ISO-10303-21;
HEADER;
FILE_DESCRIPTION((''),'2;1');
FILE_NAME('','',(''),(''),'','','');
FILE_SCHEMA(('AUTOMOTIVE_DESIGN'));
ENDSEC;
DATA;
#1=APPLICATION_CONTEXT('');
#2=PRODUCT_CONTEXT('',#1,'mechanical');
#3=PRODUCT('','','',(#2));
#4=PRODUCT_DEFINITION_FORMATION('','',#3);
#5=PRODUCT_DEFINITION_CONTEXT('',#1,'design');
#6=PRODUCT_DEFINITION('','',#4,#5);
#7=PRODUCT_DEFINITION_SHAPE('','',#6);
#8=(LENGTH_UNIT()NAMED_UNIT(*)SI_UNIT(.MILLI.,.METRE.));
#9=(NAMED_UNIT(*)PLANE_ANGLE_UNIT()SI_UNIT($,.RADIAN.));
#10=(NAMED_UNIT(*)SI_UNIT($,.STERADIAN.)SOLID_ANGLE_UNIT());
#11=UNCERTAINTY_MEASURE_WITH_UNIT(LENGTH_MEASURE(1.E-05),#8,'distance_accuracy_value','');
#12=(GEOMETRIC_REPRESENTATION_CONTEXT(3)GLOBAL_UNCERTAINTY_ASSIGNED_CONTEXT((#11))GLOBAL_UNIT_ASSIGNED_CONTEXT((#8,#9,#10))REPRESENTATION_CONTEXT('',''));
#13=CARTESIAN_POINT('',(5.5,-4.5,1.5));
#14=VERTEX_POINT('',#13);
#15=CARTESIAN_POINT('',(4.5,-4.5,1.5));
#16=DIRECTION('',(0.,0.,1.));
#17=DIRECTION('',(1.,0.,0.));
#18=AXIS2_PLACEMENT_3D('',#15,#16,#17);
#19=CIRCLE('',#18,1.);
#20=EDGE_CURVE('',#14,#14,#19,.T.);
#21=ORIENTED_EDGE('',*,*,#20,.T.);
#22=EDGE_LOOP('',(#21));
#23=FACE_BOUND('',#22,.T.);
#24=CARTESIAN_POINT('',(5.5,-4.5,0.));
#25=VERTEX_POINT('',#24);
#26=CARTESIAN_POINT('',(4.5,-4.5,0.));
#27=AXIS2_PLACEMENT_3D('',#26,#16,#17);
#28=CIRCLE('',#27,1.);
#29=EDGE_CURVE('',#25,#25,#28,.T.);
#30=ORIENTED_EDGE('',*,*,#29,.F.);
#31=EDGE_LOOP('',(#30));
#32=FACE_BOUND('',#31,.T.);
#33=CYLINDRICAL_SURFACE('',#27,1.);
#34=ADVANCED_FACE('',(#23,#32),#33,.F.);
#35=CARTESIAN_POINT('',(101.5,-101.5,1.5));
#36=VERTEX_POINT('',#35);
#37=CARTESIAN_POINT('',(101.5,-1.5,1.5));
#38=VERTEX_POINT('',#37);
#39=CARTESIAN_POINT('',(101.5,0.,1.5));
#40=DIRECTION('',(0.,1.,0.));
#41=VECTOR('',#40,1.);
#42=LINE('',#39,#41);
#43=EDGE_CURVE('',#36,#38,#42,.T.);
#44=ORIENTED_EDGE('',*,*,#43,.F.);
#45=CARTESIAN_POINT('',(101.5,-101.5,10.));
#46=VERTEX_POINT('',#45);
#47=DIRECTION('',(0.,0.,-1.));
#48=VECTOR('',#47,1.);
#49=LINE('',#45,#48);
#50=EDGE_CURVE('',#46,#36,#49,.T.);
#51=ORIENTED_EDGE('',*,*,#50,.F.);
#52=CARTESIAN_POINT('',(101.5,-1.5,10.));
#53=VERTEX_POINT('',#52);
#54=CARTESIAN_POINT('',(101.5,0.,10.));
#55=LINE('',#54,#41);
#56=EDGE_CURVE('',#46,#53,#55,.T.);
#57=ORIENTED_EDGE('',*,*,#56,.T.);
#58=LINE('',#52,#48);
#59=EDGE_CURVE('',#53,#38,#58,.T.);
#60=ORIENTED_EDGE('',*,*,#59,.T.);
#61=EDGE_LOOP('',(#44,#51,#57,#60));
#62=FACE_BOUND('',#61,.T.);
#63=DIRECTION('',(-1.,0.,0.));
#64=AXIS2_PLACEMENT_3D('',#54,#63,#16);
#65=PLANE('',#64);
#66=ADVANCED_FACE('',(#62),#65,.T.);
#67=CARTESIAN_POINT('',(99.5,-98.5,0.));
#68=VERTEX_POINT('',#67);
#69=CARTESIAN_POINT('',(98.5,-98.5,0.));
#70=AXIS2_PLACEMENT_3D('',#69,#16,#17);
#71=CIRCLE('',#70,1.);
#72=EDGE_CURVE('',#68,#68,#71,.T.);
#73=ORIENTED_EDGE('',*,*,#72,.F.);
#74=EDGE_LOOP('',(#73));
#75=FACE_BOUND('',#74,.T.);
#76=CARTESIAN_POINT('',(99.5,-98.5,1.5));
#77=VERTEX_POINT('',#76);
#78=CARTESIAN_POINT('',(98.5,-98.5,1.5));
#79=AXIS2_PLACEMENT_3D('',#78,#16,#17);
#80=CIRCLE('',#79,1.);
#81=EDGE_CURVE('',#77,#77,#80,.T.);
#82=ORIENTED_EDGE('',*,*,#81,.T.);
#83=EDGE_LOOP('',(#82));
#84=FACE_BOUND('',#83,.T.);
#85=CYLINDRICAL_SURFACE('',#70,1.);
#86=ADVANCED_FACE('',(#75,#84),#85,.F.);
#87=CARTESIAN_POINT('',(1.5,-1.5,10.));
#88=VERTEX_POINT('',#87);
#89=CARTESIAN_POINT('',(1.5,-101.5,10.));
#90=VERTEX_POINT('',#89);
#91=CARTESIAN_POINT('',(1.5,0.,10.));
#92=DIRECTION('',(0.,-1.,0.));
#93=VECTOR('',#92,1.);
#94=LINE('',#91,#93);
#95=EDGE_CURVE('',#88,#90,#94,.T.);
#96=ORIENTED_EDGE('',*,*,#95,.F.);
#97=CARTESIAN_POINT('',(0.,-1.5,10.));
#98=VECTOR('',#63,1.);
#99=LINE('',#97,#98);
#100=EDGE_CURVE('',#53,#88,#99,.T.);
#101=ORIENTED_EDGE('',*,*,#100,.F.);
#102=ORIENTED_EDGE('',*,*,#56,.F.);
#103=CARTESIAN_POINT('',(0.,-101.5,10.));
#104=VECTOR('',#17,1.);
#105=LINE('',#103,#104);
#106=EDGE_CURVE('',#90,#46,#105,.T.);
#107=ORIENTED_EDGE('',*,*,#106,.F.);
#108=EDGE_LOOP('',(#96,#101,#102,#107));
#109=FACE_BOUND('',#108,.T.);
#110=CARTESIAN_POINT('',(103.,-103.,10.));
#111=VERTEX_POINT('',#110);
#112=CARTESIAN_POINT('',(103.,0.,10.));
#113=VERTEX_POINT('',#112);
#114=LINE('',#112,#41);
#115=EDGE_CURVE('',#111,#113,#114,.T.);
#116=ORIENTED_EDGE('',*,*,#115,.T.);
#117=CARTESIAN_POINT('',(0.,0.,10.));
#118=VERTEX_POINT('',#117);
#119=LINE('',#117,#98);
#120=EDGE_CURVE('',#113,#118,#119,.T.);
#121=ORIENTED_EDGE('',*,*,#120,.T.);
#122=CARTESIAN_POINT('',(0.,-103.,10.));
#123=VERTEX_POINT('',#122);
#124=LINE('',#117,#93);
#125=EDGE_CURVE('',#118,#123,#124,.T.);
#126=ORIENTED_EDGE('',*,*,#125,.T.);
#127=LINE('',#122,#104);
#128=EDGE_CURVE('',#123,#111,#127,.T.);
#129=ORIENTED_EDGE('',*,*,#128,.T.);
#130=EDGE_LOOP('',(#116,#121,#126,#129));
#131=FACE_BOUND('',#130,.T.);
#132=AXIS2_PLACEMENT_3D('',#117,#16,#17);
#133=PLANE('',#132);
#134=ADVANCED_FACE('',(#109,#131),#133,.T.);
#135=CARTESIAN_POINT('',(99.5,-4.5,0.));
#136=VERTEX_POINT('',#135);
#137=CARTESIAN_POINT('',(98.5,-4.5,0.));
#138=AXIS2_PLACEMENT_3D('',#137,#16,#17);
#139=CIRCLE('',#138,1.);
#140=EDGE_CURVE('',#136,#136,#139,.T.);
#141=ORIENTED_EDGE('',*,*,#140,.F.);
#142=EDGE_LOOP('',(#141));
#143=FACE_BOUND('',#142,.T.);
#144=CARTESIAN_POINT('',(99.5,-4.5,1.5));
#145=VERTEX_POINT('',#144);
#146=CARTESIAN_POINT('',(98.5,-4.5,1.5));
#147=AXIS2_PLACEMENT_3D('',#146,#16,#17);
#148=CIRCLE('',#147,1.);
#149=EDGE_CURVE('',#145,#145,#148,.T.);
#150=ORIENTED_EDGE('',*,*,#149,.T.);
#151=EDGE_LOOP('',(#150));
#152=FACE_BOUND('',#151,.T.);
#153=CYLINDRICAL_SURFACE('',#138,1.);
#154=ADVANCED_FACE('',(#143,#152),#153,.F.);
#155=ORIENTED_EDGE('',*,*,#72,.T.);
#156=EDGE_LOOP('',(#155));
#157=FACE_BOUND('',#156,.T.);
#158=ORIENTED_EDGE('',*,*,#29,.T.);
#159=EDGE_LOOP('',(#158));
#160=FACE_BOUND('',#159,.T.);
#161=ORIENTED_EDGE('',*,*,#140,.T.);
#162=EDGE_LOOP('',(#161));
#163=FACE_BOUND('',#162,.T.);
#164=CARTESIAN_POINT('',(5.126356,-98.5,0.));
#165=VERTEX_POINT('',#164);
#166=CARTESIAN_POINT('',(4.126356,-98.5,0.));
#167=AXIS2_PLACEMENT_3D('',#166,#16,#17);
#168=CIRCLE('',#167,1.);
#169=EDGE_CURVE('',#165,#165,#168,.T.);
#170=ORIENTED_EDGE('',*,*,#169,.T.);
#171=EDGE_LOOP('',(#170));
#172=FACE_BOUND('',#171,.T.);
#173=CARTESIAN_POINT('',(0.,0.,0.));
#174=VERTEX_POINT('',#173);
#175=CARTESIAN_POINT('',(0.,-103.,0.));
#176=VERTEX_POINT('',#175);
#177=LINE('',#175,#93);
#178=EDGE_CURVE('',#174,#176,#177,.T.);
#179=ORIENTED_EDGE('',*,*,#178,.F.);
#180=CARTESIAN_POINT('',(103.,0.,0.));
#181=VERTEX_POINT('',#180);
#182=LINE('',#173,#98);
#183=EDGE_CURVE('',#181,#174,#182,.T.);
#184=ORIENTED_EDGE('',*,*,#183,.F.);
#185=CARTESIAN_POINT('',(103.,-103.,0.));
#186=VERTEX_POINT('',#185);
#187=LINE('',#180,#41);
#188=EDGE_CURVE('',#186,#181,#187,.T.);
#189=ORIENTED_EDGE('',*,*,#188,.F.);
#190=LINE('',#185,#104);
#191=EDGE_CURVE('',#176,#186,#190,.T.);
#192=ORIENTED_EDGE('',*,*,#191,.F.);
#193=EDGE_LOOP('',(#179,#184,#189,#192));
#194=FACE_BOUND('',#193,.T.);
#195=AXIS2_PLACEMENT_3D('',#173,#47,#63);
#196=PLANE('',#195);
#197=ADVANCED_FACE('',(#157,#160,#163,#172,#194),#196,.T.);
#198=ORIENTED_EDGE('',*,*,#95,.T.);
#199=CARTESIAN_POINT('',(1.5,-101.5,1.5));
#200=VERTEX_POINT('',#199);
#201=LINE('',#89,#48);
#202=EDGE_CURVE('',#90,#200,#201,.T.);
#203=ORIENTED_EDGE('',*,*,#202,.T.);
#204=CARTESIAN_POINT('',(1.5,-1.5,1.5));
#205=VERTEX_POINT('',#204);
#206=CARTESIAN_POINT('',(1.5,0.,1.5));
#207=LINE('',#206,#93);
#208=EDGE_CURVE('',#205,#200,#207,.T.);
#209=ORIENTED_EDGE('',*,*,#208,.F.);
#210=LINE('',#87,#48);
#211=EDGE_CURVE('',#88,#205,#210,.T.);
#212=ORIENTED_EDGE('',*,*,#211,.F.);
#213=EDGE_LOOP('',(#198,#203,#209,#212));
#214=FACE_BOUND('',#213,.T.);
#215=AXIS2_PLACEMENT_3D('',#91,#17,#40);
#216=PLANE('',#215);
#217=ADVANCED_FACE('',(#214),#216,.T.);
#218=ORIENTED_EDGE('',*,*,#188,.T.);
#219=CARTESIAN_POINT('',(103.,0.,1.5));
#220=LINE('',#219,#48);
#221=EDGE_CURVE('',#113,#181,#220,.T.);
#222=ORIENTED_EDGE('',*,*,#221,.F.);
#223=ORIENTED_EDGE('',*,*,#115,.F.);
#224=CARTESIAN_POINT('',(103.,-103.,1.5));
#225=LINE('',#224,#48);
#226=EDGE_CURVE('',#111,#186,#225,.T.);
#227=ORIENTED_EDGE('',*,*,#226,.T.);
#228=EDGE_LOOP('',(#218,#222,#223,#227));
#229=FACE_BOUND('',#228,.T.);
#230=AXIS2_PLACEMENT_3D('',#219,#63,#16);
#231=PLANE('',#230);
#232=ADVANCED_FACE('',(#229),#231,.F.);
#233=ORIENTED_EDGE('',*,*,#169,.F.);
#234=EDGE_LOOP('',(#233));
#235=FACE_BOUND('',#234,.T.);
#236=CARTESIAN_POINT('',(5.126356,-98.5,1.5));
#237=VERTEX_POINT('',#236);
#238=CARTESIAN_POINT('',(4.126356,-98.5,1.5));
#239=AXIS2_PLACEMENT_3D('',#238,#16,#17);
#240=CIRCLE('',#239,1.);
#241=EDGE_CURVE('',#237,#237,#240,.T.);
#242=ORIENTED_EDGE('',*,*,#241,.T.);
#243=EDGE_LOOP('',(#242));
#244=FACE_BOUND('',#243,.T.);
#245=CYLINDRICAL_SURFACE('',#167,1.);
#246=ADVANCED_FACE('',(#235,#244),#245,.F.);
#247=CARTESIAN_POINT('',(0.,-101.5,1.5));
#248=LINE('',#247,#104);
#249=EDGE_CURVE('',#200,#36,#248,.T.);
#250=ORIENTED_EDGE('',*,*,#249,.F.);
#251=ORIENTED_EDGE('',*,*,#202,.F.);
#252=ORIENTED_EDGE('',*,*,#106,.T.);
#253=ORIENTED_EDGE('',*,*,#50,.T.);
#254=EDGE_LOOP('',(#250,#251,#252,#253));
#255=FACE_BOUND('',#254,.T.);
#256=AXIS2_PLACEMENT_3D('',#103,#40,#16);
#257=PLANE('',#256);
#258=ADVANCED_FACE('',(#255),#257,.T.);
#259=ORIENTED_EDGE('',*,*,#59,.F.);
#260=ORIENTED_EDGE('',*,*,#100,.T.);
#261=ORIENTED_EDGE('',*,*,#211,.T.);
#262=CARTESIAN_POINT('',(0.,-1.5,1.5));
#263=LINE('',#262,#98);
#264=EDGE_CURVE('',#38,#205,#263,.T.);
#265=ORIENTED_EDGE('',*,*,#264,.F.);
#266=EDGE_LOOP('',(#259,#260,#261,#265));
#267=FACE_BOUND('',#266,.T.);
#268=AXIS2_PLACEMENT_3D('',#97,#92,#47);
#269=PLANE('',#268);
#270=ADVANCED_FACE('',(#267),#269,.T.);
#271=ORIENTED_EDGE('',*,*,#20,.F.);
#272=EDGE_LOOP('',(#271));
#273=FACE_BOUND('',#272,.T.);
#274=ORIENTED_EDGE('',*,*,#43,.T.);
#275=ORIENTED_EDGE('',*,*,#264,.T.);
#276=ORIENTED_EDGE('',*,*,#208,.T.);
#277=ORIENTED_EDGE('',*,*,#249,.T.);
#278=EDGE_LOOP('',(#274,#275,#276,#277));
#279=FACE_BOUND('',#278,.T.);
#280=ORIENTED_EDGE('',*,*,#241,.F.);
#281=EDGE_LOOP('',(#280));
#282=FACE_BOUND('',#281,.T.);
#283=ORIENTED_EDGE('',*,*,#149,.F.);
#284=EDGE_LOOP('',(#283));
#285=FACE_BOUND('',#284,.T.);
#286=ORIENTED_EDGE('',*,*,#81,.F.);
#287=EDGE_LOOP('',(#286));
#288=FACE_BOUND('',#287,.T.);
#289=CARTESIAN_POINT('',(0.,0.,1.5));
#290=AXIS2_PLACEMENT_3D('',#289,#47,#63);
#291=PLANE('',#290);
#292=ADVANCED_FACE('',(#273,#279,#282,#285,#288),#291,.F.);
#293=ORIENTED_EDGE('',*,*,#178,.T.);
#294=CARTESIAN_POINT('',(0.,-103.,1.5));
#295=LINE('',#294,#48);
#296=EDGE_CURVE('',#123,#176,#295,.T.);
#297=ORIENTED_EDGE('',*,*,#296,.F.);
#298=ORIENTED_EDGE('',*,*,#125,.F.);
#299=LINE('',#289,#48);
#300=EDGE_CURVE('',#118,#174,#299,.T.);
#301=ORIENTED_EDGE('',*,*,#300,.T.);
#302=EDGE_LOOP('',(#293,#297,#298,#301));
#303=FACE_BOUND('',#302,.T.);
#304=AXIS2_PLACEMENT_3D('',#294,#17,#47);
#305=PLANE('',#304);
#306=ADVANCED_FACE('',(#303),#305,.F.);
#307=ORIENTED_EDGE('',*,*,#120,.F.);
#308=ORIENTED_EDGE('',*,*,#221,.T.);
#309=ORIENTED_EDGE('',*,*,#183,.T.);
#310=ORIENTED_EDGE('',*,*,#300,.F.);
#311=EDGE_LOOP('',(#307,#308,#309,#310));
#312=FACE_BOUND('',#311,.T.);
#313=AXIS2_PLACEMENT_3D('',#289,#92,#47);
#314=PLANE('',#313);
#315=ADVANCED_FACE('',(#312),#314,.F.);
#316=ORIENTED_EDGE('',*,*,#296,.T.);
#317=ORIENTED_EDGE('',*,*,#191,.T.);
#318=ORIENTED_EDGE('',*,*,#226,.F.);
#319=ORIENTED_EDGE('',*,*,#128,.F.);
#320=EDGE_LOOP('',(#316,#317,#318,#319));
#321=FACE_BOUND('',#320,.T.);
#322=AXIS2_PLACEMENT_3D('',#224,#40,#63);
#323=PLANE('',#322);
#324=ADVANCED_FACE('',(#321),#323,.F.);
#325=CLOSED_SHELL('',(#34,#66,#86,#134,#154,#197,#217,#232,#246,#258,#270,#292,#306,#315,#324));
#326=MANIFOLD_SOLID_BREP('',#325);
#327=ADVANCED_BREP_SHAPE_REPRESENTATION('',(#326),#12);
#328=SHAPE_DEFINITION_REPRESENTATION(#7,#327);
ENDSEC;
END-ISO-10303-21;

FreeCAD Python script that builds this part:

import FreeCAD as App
import Part
import Sketcher
from FreeCAD import Vector


def add_polygon(sketch, points):
    """Adds a closed chain of lines whose ends are joined by coincident constraints."""
    first, n = sketch.GeometryCount, len(points)
    for a, b in zip(points, points[1:] + points[:1]):
        sketch.addGeometry(Part.LineSegment(App.Vector(*a, 0), App.Vector(*b, 0)), False)
    for i in range(n):
        sketch.addConstraint(Sketcher.Constraint("Coincident", first + i, 2, first + (i + 1) % n, 1))

doc = App.newDocument("Part")
body = doc.addObject("PartDesign::Body", "Body")

# Sketch on XY plane
sketch1 = body.newObject("Sketcher::SketchObject", "Sketch")
sketch1.AttachmentSupport = (doc.getObject("XY_Plane"), [""])
sketch1.MapMode = "FlatFace"
add_polygon(sketch1, [(0, 0), (0, -103), (103, -103), (103, 0)])  # lines 0-3
sketch1.addConstraint(Sketcher.Constraint("Vertical", 0))
sketch1.addConstraint(Sketcher.Constraint("Horizontal", 1))
sketch1.addConstraint(Sketcher.Constraint("Vertical", 2))
sketch1.addConstraint(Sketcher.Constraint("Horizontal", 3))
sketch1.addConstraint(Sketcher.Constraint("Coincident", 3, 2, -1, 1))
sketch1.addConstraint(Sketcher.Constraint("Equal", 3, 0))
sketch1.addConstraint(Sketcher.Constraint("DistanceX", 1, 1, 1, 2, 103.0))
pad1 = body.newObject("PartDesign::Pad", "Pad")
pad1.Profile = sketch1
pad1.Length = 1.5

# Sketch on XY plane
sketch2 = body.newObject("Sketcher::SketchObject", "Sketch001")
sketch2.AttachmentSupport = (doc.getObject("XY_Plane"), [""])
sketch2.MapMode = "FlatFace"
sketch2.AttachmentOffset = App.Placement(Vector(0, 0, 1.5), App.Rotation())
add_polygon(sketch2, [(0, 0), (0, -103), (103, -103), (103, 0)])  # lines 0-3
add_polygon(sketch2, [(102, -102), (2, -102), (2, -2), (102, -2)])  # lines 4-7
sketch2.addConstraint(Sketcher.Constraint("Vertical", 0))
sketch2.addConstraint(Sketcher.Constraint("Horizontal", 1))
sketch2.addConstraint(Sketcher.Constraint("Vertical", 2))
sketch2.addConstraint(Sketcher.Constraint("Horizontal", 3))
sketch2.addConstraint(Sketcher.Constraint("Horizontal", 4))
sketch2.addConstraint(Sketcher.Constraint("Vertical", 5))
sketch2.addConstraint(Sketcher.Constraint("Horizontal", 6))
sketch2.addConstraint(Sketcher.Constraint("Vertical", 7))
sketch2.addConstraint(Sketcher.Constraint("Coincident", 3, 2, -1, 1))
sketch2.addConstraint(Sketcher.Constraint("Equal", 3, 0))
sketch2.addConstraint(Sketcher.Constraint("Equal", 6, 5))
sketch2.addConstraint(Sketcher.Constraint("DistanceX", 1, 1, 1, 2, 103.0))
sketch2.addConstraint(Sketcher.Constraint("DistanceX", 4, 2, 4, 1, 100.0))
sketch2.addConstraint(Sketcher.Constraint("DistanceX", -1, 1, 4, 2, 1.5))
sketch2.addConstraint(Sketcher.Constraint("DistanceY", 4, 2, -1, 1, 101.5))
pad2 = body.newObject("PartDesign::Pad", "Pad001")
pad2.Profile = sketch2
pad2.Length = 8.5

# Sketch on XY plane
sketch3 = body.newObject("Sketcher::SketchObject", "Sketch002")
sketch3.AttachmentSupport = (doc.getObject("XY_Plane"), [""])
sketch3.MapMode = "FlatFace"
sketch3.AttachmentOffset = App.Placement(Vector(0, 0, 1.5), App.Rotation())
sketch3.addGeometry(Part.Circle(Vector(4.1, -98.5, 0), Vector(0, 0, 1), 1), False)
sketch3.addGeometry(Part.Circle(Vector(98.5, -98.5, 0), Vector(0, 0, 1), 1), False)
sketch3.addGeometry(Part.Circle(Vector(98.5, -4.5, 0), Vector(0, 0, 1), 1), False)
sketch3.addGeometry(Part.Circle(Vector(4.5, -4.5, 0), Vector(0, 0, 1), 1), False)
sketch3.addConstraint(Sketcher.Constraint("Equal", 0, 1))
sketch3.addConstraint(Sketcher.Constraint("Equal", 1, 2))
sketch3.addConstraint(Sketcher.Constraint("Equal", 2, 3))
sketch3.addConstraint(Sketcher.Constraint("Horizontal", 0, 3, 1, 3))
sketch3.addConstraint(Sketcher.Constraint("Horizontal", 2, 3, 3, 3))
sketch3.addConstraint(Sketcher.Constraint("Vertical", 1, 3, 2, 3))
sketch3.addConstraint(Sketcher.Constraint("Diameter", 0, 2.0))
sketch3.addConstraint(Sketcher.Constraint("DistanceY", 1, 3, 2, 3, 94.0))
sketch3.addConstraint(Sketcher.Constraint("DistanceX", 3, 3, 2, 3, 94.0))
sketch3.addConstraint(Sketcher.Constraint("DistanceY", 0, 3, -1, 1, 98.5))
sketch3.addConstraint(Sketcher.Constraint("DistanceX", -1, 1, 1, 3, 98.5))
sketch3.addConstraint(Sketcher.Constraint("DistanceX", -1, 1, 0, 3, 4.126356))
pocket1 = body.newObject("PartDesign::Pocket", "Pocket")
pocket1.Profile = sketch3
pocket1.Length = 1.5

doc.recompute()
